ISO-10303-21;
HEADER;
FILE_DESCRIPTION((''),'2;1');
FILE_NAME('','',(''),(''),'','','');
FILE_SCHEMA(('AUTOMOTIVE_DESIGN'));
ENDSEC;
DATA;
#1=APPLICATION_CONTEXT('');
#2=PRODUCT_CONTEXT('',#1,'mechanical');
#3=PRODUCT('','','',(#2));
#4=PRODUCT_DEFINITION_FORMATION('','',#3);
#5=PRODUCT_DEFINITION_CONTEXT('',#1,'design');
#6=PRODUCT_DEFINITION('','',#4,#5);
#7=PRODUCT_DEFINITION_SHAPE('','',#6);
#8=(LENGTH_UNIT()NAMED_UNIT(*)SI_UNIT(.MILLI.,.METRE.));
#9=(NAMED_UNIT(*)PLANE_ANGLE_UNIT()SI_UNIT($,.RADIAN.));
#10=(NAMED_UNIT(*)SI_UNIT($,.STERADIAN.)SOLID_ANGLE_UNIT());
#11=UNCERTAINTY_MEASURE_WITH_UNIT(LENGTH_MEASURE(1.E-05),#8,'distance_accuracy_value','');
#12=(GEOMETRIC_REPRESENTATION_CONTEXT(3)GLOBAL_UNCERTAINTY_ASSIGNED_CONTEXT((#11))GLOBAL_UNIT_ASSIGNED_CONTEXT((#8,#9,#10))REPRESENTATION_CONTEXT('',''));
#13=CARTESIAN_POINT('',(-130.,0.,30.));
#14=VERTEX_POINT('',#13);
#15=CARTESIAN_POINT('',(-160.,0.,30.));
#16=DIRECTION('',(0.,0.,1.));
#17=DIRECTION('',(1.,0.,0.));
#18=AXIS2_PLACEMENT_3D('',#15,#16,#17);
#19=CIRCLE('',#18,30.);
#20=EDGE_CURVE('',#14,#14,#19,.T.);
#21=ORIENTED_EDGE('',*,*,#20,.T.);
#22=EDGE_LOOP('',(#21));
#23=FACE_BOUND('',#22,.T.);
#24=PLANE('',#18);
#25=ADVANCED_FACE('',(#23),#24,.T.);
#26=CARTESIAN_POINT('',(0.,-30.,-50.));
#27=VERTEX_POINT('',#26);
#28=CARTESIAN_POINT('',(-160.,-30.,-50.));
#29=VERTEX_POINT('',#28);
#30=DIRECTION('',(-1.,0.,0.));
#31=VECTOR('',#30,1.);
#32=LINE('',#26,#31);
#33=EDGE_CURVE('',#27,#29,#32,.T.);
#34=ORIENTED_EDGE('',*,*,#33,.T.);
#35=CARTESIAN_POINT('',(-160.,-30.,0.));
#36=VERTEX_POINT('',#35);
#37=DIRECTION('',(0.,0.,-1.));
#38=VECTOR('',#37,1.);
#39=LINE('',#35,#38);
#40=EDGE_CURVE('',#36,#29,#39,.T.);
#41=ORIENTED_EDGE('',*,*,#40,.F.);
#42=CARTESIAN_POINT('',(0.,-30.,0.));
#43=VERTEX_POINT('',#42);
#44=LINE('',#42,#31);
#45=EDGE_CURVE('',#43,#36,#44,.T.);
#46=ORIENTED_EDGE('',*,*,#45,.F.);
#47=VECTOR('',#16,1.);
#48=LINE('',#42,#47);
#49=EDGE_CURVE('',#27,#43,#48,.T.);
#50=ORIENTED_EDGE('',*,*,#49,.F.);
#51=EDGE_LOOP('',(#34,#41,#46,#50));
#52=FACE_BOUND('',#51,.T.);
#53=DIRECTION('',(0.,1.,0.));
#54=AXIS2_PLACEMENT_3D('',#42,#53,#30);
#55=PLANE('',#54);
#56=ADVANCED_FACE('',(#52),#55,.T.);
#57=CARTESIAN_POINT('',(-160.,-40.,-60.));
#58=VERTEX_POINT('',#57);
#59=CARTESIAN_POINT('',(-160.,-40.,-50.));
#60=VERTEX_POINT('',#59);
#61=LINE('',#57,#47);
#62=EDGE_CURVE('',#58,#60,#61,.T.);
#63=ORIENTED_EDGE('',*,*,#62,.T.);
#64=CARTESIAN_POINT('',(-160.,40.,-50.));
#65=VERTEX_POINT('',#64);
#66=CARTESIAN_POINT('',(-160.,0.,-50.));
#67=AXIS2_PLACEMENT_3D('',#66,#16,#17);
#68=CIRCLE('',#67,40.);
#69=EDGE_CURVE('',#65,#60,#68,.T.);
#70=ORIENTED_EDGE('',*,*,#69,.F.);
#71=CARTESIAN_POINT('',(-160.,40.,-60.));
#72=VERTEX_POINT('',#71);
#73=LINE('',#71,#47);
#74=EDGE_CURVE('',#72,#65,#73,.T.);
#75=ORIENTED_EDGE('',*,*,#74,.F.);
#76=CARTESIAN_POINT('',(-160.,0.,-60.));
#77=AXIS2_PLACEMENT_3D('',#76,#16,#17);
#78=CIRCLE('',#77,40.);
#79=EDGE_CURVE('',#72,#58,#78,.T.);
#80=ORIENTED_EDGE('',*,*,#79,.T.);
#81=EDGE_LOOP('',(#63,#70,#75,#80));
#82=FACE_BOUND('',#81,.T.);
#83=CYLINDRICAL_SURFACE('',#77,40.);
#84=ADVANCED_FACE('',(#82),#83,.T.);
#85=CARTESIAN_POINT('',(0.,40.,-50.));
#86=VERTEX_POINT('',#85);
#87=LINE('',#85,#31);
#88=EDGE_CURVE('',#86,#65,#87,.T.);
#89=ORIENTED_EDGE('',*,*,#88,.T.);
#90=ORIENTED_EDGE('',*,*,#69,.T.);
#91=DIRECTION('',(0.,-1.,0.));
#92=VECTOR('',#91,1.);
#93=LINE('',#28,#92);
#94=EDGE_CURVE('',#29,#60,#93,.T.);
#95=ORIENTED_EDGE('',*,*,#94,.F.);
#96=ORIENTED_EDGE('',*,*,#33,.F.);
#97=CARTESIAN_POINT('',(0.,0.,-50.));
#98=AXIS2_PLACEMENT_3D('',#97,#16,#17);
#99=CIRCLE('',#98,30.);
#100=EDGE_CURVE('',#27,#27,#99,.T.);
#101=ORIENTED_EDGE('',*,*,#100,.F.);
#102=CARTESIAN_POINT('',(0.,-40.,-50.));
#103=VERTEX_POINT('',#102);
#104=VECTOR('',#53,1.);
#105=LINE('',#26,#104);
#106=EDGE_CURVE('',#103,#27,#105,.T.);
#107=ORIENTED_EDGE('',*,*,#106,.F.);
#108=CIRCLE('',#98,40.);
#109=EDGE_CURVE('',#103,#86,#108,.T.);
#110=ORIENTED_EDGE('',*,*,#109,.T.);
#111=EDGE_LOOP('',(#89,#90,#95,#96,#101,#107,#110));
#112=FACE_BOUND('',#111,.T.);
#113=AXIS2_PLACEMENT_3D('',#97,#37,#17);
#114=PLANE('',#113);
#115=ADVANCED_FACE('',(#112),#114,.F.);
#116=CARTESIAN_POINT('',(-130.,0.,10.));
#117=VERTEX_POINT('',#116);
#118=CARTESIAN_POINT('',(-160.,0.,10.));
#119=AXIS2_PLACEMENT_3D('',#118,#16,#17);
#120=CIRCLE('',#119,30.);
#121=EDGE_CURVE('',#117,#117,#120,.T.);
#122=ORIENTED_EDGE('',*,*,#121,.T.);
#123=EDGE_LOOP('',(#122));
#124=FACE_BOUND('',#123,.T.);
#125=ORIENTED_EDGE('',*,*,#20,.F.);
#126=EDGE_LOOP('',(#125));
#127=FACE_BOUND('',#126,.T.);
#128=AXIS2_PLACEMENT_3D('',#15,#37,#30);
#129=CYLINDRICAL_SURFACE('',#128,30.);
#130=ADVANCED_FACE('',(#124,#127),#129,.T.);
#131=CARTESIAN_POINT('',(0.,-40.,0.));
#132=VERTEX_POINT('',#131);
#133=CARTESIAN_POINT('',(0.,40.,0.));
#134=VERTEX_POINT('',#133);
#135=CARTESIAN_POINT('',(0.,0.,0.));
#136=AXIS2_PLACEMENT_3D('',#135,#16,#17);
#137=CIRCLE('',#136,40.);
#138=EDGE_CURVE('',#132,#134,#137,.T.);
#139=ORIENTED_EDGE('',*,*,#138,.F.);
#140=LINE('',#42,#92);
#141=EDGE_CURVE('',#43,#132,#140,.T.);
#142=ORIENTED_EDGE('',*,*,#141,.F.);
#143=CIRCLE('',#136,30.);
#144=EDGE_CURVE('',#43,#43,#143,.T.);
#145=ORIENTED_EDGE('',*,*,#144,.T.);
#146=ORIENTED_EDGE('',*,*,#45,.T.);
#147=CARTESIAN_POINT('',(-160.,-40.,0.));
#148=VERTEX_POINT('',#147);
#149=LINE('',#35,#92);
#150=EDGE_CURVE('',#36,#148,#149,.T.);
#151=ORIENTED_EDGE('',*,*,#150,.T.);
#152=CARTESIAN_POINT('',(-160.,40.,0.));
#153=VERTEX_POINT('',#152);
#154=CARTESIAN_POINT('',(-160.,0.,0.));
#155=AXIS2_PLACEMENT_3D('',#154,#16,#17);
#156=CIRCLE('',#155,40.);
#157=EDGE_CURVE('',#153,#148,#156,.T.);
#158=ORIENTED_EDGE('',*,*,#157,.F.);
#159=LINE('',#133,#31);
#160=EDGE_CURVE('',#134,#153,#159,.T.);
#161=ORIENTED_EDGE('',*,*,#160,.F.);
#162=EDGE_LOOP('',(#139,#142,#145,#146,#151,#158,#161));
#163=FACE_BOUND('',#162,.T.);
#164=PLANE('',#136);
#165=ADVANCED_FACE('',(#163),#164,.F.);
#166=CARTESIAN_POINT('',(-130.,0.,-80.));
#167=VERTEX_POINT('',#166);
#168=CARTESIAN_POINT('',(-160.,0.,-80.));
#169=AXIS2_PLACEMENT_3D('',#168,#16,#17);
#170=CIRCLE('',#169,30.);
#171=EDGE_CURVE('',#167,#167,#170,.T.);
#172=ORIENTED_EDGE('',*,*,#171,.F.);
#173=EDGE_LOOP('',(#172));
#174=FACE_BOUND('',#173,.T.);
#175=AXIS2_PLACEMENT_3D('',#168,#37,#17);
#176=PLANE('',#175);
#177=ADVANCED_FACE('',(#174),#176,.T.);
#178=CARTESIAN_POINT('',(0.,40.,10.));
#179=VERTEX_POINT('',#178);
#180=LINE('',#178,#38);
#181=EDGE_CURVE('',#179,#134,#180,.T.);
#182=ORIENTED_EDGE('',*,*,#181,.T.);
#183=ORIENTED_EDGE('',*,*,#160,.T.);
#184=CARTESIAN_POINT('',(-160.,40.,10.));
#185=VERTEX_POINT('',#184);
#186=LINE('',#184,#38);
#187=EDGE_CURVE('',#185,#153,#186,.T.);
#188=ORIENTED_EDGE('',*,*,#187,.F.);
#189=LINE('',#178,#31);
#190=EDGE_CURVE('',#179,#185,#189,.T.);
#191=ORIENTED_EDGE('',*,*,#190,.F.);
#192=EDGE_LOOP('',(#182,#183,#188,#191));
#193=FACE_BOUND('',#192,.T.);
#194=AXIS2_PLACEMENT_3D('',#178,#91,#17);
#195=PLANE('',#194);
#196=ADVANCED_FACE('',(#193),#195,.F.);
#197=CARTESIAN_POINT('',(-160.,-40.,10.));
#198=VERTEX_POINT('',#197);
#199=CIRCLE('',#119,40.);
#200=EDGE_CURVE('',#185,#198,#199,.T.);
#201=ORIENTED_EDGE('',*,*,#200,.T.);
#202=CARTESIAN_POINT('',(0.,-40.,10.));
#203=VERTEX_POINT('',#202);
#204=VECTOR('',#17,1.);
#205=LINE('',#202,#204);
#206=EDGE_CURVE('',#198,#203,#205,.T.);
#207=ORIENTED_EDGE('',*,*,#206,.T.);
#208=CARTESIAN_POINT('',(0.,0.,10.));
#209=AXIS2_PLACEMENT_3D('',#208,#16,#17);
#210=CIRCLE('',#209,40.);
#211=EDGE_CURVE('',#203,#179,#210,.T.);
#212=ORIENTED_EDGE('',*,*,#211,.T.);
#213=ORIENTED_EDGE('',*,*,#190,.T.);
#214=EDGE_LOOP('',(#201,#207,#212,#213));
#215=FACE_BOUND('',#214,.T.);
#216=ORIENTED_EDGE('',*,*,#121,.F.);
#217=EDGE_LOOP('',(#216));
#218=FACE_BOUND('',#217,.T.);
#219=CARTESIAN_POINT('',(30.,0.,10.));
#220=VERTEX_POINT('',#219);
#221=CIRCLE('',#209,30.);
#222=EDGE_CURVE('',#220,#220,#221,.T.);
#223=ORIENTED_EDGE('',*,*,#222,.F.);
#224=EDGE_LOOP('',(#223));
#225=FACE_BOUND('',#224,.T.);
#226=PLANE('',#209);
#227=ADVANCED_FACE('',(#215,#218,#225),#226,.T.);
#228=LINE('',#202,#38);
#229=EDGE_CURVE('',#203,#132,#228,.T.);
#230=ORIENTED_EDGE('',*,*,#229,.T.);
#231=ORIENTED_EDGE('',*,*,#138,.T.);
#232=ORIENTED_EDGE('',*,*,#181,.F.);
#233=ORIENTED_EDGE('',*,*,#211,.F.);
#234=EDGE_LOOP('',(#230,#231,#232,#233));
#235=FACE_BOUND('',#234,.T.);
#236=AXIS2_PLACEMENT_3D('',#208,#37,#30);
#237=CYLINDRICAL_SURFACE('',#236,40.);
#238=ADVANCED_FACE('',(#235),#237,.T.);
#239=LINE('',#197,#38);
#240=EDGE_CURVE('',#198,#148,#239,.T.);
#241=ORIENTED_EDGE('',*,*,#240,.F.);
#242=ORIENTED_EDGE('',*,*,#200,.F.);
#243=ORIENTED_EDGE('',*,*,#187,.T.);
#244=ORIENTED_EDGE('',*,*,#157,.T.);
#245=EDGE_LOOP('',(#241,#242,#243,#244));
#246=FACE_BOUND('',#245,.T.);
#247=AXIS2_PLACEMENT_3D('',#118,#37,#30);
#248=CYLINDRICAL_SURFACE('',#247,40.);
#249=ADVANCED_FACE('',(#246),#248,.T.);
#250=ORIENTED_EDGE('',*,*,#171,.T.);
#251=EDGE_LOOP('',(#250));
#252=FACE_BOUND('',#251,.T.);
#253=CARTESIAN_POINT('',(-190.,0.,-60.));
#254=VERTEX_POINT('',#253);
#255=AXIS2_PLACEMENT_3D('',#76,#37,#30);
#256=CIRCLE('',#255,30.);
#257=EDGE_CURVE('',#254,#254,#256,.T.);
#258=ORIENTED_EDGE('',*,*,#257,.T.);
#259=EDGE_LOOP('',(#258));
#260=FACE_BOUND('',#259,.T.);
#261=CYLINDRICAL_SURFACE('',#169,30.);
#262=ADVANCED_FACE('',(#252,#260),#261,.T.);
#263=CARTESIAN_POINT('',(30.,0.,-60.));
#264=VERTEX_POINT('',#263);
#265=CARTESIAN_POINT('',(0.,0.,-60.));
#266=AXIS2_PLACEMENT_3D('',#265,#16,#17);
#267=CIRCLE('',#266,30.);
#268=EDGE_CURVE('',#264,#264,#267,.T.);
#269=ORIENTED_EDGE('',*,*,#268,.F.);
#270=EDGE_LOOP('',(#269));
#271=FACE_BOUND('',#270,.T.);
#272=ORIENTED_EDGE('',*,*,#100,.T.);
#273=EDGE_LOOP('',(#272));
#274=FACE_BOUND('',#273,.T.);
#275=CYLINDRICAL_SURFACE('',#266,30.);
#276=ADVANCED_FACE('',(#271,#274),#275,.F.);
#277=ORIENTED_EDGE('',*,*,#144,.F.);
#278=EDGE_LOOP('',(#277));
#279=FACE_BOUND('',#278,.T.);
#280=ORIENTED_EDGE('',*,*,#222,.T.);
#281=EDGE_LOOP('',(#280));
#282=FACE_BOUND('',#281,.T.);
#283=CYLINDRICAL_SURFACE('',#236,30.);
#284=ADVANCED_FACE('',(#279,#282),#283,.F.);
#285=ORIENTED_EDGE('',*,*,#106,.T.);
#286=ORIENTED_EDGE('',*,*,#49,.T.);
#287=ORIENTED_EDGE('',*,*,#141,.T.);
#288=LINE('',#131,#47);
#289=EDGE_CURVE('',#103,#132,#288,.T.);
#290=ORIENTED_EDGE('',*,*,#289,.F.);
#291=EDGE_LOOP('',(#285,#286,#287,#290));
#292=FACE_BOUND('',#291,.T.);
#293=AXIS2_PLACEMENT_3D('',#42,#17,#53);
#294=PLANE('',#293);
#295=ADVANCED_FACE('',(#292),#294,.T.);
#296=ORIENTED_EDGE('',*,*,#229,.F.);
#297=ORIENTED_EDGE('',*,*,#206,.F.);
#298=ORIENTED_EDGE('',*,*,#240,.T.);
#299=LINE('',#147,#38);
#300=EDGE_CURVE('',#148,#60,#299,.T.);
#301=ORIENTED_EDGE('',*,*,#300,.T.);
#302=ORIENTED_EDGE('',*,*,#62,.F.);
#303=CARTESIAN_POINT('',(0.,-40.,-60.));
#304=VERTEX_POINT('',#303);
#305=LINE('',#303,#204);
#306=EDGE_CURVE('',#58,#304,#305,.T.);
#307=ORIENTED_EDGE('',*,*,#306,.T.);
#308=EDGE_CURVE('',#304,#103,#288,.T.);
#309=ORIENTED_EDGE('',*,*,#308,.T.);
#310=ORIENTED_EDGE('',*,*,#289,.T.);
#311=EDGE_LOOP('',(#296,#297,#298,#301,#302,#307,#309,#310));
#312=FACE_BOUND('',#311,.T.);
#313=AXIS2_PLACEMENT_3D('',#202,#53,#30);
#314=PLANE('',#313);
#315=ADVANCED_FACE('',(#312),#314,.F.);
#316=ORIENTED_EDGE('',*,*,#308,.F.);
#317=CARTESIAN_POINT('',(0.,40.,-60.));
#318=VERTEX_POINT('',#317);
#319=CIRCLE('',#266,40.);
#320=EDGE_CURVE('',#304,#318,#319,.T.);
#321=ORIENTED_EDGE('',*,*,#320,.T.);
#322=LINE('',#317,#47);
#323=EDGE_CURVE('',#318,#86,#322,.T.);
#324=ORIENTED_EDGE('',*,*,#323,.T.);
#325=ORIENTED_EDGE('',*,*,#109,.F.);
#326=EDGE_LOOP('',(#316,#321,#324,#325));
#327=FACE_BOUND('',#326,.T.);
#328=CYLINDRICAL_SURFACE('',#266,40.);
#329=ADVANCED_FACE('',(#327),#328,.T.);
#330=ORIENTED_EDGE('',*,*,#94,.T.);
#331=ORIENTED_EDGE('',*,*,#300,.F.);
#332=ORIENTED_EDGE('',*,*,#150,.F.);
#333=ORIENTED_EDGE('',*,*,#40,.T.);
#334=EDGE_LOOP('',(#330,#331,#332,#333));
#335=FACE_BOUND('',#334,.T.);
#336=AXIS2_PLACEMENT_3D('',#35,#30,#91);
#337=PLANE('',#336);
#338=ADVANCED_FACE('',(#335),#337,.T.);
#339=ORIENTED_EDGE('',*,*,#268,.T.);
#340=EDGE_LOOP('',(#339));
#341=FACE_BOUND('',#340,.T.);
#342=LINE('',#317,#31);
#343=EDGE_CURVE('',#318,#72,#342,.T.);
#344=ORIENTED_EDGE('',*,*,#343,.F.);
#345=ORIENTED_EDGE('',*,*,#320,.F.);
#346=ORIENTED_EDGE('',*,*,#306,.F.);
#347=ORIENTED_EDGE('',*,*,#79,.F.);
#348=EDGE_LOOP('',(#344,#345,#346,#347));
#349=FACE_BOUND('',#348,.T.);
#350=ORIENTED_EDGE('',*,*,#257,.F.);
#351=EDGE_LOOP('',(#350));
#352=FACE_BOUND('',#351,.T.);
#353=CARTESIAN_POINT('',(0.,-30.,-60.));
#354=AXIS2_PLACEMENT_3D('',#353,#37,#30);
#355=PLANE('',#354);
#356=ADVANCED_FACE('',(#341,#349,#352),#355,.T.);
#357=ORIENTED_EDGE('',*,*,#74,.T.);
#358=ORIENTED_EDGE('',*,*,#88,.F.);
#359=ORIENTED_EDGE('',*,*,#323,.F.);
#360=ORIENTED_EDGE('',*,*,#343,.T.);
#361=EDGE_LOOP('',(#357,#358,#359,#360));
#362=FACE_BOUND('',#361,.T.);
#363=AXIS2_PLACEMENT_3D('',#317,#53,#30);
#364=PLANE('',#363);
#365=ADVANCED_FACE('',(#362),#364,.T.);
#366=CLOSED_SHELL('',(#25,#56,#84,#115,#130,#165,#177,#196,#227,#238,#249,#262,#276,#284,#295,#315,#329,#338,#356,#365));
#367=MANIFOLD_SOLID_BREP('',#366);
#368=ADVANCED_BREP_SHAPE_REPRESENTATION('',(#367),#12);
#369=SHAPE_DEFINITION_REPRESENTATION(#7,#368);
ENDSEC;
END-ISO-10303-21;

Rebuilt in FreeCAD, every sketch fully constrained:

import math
import FreeCAD as App
import Part
import Sketcher

doc = App.newDocument("Part")
body = doc.addObject("PartDesign::Body", "Body")

# Sketch on XY plane
sketch1 = body.newObject("Sketcher::SketchObject", "Sketch")
sketch1.AttachmentSupport = (doc.getObject("XY_Plane"), [""])
sketch1.MapMode = "FlatFace"
sketch1.addGeometry([
    Part.LineSegment(App.Vector(-160, -40, 0), App.Vector(0, -40, 0)),  # 0
    Part.ArcOfCircle(Part.Circle(App.Vector(0, 0, 0), App.Vector(0, 0, 1), 40), math.radians(-90), math.radians(90)),  # 1
    Part.LineSegment(App.Vector(0, 40, 0), App.Vector(-160, 40, 0)),  # 2
    Part.ArcOfCircle(Part.Circle(App.Vector(-160, 0, 0), App.Vector(0, 0, 1), 40), math.radians(90), math.radians(270)),  # 3
    Part.Circle(App.Vector(0, 0, 0), App.Vector(0, 0, 1), 30),  # 4
], False)
sketch1.addConstraint([
    Sketcher.Constraint("Tangent", 0, 2, 1, 1),
    Sketcher.Constraint("Tangent", 1, 2, 2, 1),
    Sketcher.Constraint("Tangent", 2, 2, 3, 1),
    Sketcher.Constraint("Tangent", 3, 2, 0, 1),
    Sketcher.Constraint("Horizontal", 0),
    Sketcher.Constraint("Horizontal", 2),
    Sketcher.Constraint("Coincident", 1, 3, -1, 1),
    Sketcher.Constraint("Coincident", 4, 3, -1, 1),
    Sketcher.Constraint("Diameter", 4, 60.0),
    Sketcher.Constraint("Radius", 1, 40.0),
    Sketcher.Constraint("DistanceX", 0, 1, 0, 2, 160.0),
])
pad1 = body.newObject("PartDesign::Pad", "Pad")
pad1.Profile = sketch1
pad1.Length = 10

# Sketch on XY plane
sketch2 = body.newObject("Sketcher::SketchObject", "Sketch001")
sketch2.AttachmentSupport = (doc.getObject("XY_Plane"), [""])
sketch2.MapMode = "FlatFace"
sketch2.AttachmentOffset = App.Placement(App.Vector(0, 0, 10), App.Rotation())
sketch2.addGeometry(Part.Circle(App.Vector(-160, 0, 0), App.Vector(0, 0, 1), 30), False)
sketch2.addConstraint([
    Sketcher.Constraint("PointOnObject", 0, 3, -1),
    Sketcher.Constraint("Diameter", 0, 60.0),
    Sketcher.Constraint("DistanceX", 0, 3, -1, 1, 160.0),
])
pad2 = body.newObject("PartDesign::Pad", "Pad001")
pad2.Profile = sketch2
pad2.Length = 20

# Sketch on XZ plane
sketch3 = body.newObject("Sketcher::SketchObject", "Sketch002")
sketch3.AttachmentSupport = (doc.getObject("XZ_Plane"), [""])
sketch3.MapMode = "FlatFace"
sketch3.AttachmentOffset = App.Placement(App.Vector(0, 0, 40), App.Rotation())
sketch3.addGeometry([
    Part.LineSegment(App.Vector(-160, 0, 0), App.Vector(-160, -60, 0)),
    Part.LineSegment(App.Vector(-160, -60, 0), App.Vector(0, -60, 0)),
    Part.LineSegment(App.Vector(0, -60, 0), App.Vector(0, 0, 0)),
    Part.LineSegment(App.Vector(0, 0, 0), App.Vector(-160, 0, 0)),
], False)
sketch3.addConstraint([
    Sketcher.Constraint("Coincident", 0, 2, 1, 1),
    Sketcher.Constraint("Coincident", 1, 2, 2, 1),
    Sketcher.Constraint("Coincident", 2, 2, 3, 1),
    Sketcher.Constraint("Coincident", 3, 2, 0, 1),
    Sketcher.Constraint("Vertical", 0),
    Sketcher.Constraint("Horizontal", 1),
    Sketcher.Constraint("Vertical", 2),
    Sketcher.Constraint("Horizontal", 3),
    Sketcher.Constraint("Coincident", 2, 2, -1, 1),
    Sketcher.Constraint("DistanceX", 1, 1, 1, 2, 160.0),
    Sketcher.Constraint("DistanceY", 0, 2, 0, 1, 60.0),
])
pad3 = body.newObject("PartDesign::Pad", "Pad002")
pad3.Profile = sketch3
pad3.Length = 10
pad3.Reversed = True
doc.recompute()

datumplane = body.newObject("PartDesign::Plane", "DatumPlane")
datumplane.AttachmentSupport = (doc.getObject("XY_Plane"), [""])
datumplane.MapMode = "FlatFace"
datumplane.AttachmentOffset = App.Placement(App.Vector(0, 0, -25), App.Rotation())
mirrored = body.newObject("PartDesign::Mirrored", "Mirrored")
mirrored.Originals = [pad1, pad2]
mirrored.MirrorPlane = (datumplane, [""])
body.Tip = mirrored

doc.recompute()
